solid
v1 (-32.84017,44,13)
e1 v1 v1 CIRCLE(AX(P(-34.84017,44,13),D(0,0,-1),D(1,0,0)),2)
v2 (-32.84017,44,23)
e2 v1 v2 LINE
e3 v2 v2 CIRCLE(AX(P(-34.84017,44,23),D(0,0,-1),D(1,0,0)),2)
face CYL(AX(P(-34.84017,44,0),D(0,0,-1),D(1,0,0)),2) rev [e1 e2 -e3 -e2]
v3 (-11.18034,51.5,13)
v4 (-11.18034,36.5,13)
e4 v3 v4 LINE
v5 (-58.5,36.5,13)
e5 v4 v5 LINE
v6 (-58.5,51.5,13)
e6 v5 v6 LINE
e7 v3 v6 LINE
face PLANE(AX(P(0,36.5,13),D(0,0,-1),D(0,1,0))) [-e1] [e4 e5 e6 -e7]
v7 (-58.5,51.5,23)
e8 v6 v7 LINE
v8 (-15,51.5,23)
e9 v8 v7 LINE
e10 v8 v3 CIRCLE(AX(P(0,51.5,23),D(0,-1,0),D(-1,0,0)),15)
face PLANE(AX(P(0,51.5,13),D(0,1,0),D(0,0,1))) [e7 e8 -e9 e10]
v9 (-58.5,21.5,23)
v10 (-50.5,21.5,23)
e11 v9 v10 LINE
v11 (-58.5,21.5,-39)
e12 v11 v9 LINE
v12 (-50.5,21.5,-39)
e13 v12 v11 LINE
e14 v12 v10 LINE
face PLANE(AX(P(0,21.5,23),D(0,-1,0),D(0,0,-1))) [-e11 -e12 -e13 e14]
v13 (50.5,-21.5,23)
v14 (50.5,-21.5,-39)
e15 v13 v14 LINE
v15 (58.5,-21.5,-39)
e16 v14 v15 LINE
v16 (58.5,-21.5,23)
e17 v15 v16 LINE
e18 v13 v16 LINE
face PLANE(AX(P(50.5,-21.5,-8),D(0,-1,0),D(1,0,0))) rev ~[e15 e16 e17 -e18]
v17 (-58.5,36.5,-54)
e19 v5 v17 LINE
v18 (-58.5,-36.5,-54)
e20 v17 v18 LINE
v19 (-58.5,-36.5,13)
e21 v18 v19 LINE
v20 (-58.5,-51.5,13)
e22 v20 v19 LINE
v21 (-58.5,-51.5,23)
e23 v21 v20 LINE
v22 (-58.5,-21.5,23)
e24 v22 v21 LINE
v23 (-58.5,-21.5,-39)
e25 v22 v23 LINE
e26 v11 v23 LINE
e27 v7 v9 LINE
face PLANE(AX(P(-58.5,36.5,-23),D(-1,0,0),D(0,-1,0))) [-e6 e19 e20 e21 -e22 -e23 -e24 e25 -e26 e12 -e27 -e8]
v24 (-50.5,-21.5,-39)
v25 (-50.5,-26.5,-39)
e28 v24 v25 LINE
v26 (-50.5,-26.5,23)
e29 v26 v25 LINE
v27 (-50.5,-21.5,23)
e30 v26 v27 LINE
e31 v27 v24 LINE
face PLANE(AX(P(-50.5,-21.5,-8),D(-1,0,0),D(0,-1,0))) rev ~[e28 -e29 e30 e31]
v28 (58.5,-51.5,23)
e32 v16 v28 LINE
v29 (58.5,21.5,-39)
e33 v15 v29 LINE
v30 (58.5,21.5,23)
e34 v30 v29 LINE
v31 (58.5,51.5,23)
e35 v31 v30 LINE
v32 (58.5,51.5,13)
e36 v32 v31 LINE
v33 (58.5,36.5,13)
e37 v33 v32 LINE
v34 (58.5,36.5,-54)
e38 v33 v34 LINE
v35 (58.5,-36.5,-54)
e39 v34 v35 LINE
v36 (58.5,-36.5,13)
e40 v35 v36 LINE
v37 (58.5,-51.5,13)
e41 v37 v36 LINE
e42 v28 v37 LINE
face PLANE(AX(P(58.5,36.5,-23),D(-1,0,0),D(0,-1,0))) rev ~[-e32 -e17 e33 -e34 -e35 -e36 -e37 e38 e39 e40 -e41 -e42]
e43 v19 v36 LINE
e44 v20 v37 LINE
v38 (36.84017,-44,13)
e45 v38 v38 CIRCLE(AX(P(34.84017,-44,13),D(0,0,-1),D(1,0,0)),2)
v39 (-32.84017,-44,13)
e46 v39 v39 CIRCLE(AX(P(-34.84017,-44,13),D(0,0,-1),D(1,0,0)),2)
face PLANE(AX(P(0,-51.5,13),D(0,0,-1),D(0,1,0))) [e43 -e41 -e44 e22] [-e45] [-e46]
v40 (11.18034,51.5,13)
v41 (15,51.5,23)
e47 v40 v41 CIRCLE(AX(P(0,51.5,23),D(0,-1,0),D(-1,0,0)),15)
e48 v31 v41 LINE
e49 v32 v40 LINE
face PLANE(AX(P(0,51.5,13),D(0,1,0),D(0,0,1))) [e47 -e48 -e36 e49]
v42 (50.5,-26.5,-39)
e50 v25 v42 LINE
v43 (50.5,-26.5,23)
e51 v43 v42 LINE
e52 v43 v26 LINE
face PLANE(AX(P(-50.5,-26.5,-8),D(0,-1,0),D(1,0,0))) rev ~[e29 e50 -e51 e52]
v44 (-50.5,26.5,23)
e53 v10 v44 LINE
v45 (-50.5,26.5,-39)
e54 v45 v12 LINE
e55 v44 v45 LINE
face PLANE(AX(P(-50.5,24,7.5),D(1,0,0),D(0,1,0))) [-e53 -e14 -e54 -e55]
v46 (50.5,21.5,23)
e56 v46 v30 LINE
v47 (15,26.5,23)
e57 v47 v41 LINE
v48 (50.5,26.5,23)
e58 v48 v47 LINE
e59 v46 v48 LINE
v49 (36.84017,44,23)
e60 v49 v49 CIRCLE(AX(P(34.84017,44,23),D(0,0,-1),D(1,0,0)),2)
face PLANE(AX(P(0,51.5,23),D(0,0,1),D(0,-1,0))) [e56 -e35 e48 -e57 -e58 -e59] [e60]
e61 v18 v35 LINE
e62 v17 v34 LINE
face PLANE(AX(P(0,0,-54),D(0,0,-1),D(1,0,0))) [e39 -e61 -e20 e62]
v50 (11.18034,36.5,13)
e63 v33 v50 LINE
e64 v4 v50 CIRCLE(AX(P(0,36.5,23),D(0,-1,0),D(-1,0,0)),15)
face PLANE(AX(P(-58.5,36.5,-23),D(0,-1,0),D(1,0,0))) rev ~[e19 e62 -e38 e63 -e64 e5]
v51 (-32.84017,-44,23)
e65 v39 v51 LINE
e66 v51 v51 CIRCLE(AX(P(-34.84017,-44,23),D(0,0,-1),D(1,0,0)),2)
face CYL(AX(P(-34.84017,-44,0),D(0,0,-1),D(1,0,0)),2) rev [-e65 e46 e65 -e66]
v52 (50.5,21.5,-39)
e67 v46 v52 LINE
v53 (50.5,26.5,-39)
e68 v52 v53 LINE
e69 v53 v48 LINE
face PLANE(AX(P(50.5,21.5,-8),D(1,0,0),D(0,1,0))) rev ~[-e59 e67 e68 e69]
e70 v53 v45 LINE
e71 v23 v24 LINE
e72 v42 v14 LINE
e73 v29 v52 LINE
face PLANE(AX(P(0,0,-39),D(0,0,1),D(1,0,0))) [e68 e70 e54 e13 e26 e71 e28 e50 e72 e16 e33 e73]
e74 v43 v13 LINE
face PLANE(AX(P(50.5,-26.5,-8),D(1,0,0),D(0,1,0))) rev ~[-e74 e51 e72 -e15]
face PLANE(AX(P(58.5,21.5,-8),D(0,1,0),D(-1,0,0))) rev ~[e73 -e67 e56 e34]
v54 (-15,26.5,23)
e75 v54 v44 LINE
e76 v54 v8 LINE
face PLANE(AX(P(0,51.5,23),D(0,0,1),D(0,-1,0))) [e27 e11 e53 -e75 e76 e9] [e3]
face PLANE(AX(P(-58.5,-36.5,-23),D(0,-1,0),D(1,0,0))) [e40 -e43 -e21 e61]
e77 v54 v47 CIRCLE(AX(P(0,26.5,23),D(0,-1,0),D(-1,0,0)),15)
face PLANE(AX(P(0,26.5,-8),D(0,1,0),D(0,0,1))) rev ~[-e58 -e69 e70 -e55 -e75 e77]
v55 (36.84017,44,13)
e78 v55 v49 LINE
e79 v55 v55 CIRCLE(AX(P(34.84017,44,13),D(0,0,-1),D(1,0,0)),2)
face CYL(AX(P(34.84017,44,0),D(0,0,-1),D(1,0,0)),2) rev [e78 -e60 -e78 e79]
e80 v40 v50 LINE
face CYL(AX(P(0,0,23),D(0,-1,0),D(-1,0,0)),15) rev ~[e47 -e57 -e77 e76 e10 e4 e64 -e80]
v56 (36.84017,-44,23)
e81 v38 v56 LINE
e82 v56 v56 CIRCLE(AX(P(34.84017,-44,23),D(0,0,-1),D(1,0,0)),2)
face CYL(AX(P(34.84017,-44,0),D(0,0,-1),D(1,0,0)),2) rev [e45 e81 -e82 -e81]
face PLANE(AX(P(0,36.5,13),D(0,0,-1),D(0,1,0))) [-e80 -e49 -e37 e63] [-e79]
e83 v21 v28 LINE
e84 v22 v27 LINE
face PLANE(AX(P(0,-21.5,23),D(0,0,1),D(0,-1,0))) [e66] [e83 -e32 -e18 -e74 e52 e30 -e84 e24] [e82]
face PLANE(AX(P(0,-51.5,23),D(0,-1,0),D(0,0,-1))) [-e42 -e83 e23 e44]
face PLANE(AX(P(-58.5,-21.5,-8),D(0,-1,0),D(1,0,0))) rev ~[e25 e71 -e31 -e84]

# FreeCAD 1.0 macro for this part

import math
import FreeCAD as App
import Part
import Sketcher
from FreeCAD import Vector


def add_polygon(sketch, points):
    """Adds a closed chain of lines whose ends are joined by coincident constraints."""
    first, n = sketch.GeometryCount, len(points)
    for a, b in zip(points, points[1:] + points[:1]):
        sketch.addGeometry(Part.LineSegment(App.Vector(*a, 0), App.Vector(*b, 0)), False)
    for i in range(n):
        sketch.addConstraint(Sketcher.Constraint("Coincident", first + i, 2, first + (i + 1) % n, 1))

doc = App.newDocument("Part")
body = doc.addObject("PartDesign::Body", "Body")

sketch1 = body.newObject("Sketcher::SketchObject", "Sketch")
sketch1.AttachmentSupport = (doc.getObject("YZ_Plane"), [""])
sketch1.MapMode = "FlatFace"
add_polygon(sketch1, [(52, 23), (22, 23), (22, -8), (-22, -8), (-22, 23), (-52, 23), (-52, 13), (-36, 13), (-36, -23), (36, -23), (36, 13), (52, 13)])
sketch1.addConstraint(Sketcher.Constraint("Horizontal", 0))
sketch1.addConstraint(Sketcher.Constraint("Vertical", 1))
sketch1.addConstraint(Sketcher.Constraint("Horizontal", 2))
sketch1.addConstraint(Sketcher.Constraint("Vertical", 3))
sketch1.addConstraint(Sketcher.Constraint("Horizontal", 4))
sketch1.addConstraint(Sketcher.Constraint("Vertical", 5))
sketch1.addConstraint(Sketcher.Constraint("Horizontal", 6))
sketch1.addConstraint(Sketcher.Constraint("Vertical", 7))
sketch1.addConstraint(Sketcher.Constraint("Horizontal", 8))
sketch1.addConstraint(Sketcher.Constraint("Vertical", 9))
sketch1.addConstraint(Sketcher.Constraint("Horizontal", 10))
sketch1.addConstraint(Sketcher.Constraint("Vertical", 11))
sketch1.addConstraint(Sketcher.Constraint("Symmetric", 0, 2, 3, 2, -2))
sketch1.addConstraint(Sketcher.Constraint("Symmetric", 6, 2, 9, 2, -2))
sketch1.addConstraint(Sketcher.Constraint("Equal", 0, 4))
sketch1.addConstraint(Sketcher.Constraint("DistanceX", 0, 2, 0, 1, 30.0))
sketch1.addConstraint(Sketcher.Constraint("DistanceX", 2, 2, 2, 1, 43.0))
sketch1.addConstraint(Sketcher.Constraint("DistanceX", 6, 1, 6, 2, 15.0))
sketch1.addConstraint(Sketcher.Constraint("DistanceY", 1, 2, 1, 1, 31.0))
sketch1.addConstraint(Sketcher.Constraint("DistanceY", 5, 2, 5, 1, 10.0))
sketch1.addConstraint(Sketcher.Constraint("DistanceY", 7, 2, 7, 1, 36.0))
sketch1.addConstraint(Sketcher.Constraint("DistanceY", -1, 1, 0, 2, 23.0))
pad1 = body.newObject("PartDesign::Pad", "Pad")
pad1.Profile = sketch1
pad1.Length = 117
pad1.Midplane = True

sketch2 = body.newObject("Sketcher::SketchObject", "Sketch001")
sketch2.AttachmentSupport = (doc.getObject("XZ_Plane"), [""])
sketch2.MapMode = "FlatFace"
sketch2.addGeometry(Part.ArcOfCircle(Part.Circle(Vector(0, 23, 0), Vector(0, 0, 1), 15), math.radians(180), math.radians(360)), False)
sketch2.addGeometry(Part.LineSegment(Vector(15, 23, 0), Vector(-15, 23, 0)), False)
sketch2.addConstraint(Sketcher.Constraint("Coincident", 0, 1, 1, 2))
sketch2.addConstraint(Sketcher.Constraint("Coincident", 1, 1, 0, 2))
sketch2.addConstraint(Sketcher.Constraint("Horizontal", 1))
sketch2.addConstraint(Sketcher.Constraint("PointOnObject", 0, 3, -2))
sketch2.addConstraint(Sketcher.Constraint("Radius", 0, 15.0))
sketch2.addConstraint(Sketcher.Constraint("DistanceY", -1, 1, 0, 3, 23.0))
sketch2.addConstraint(Sketcher.Constraint("DistanceY", -1, 1, 0, 1, 23.0))
pocket1 = body.newObject("PartDesign::Pocket", "Pocket")
pocket1.Profile = sketch2
pocket1.Length = 136.4

sketch3 = body.newObject("Sketcher::SketchObject", "Sketch002")
sketch3.AttachmentSupport = (doc.getObject("XY_Plane"), [""])
sketch3.MapMode = "FlatFace"
sketch3.addGeometry(Part.Circle(Vector(-34.8, -44, 0), Vector(0, 0, 1), 2), False)
sketch3.addGeometry(Part.Circle(Vector(34.8, -44, 0), Vector(0, 0, 1), 2), False)
sketch3.addGeometry(Part.Circle(Vector(-34.8, 44, 0), Vector(0, 0, 1), 2), False)
sketch3.addGeometry(Part.Circle(Vector(34.8, 44, 0), Vector(0, 0, 1), 2), False)
sketch3.addConstraint(Sketcher.Constraint("Equal", 0, 1))
sketch3.addConstraint(Sketcher.Constraint("Equal", 1, 2))
sketch3.addConstraint(Sketcher.Constraint("Equal", 2, 3))
sketch3.addConstraint(Sketcher.Constraint("Symmetric", 1, 3, 2, 3, -1, 1))
sketch3.addConstraint(Sketcher.Constraint("Symmetric", 0, 3, 3, 3, -1, 1))
sketch3.addConstraint(Sketcher.Constraint("Symmetric", 0, 3, 1, 3, -2))
sketch3.addConstraint(Sketcher.Constraint("Diameter", 0, 4.0))
sketch3.addConstraint(Sketcher.Constraint("DistanceY", 0, 3, -1, 1, 44.0))
sketch3.addConstraint(Sketcher.Constraint("DistanceX", 0, 3, -1, 1, 34.84017))
pocket2 = body.newObject("PartDesign::Pocket", "Pocket001")
pocket2.Profile = sketch3
pocket2.Length = 25
pocket2.Reversed = True

sketch4 = body.newObject("Sketcher::SketchObject", "Sketch003")
sketch4.AttachmentSupport = (doc.getObject("YZ_Plane"), [""])
sketch4.MapMode = "FlatFace"
add_polygon(sketch4, [(-26, 23), (-26, -8), (-22, -8), (-22, 23)])
add_polygon(sketch4, [(22, 23), (22, -8), (26, -8), (26, 23)])
sketch4.addConstraint(Sketcher.Constraint("Vertical", 0))
sketch4.addConstraint(Sketcher.Constraint("Horizontal", 1))
sketch4.addConstraint(Sketcher.Constraint("Vertical", 2))
sketch4.addConstraint(Sketcher.Constraint("Horizontal", 3))
sketch4.addConstraint(Sketcher.Constraint("Vertical", 4))
sketch4.addConstraint(Sketcher.Constraint("Horizontal", 5))
sketch4.addConstraint(Sketcher.Constraint("Vertical", 6))
sketch4.addConstraint(Sketcher.Constraint("Horizontal", 7))
sketch4.addConstraint(Sketcher.Constraint("Symmetric", 1, 2, 4, 2, -2))
sketch4.addConstraint(Sketcher.Constraint("Symmetric", 3, 2, 6, 2, -2))
sketch4.addConstraint(Sketcher.Constraint("DistanceX", 1, 1, 1, 2, 5.0))
sketch4.addConstraint(Sketcher.Constraint("DistanceY", 0, 2, 0, 1, 31.0))
sketch4.addConstraint(Sketcher.Constraint("DistanceY", 0, 2, -1, 1, 8.0))
sketch4.addConstraint(Sketcher.Constraint("DistanceX", 1, 2, 4, 2, 43.0))
pocket3 = body.newObject("PartDesign::Pocket", "Pocket002")
pocket3.Profile = sketch4
pocket3.Length = 101
pocket3.Midplane = True

sketch5 = body.newObject("Sketcher::SketchObject", "Sketch004")
sketch5.AttachmentSupport = (doc.getObject("XY_Plane"), [""])
sketch5.MapMode = "FlatFace"
sketch5.AttachmentOffset = App.Placement(Vector(0, 0, -23), App.Rotation())
add_polygon(sketch5, [(-58, -36), (-58, 36), (58, 36), (58, -36)])
sketch5.addConstraint(Sketcher.Constraint("Vertical", 0))
sketch5.addConstraint(Sketcher.Constraint("Horizontal", 1))
sketch5.addConstraint(Sketcher.Constraint("Vertical", 2))
sketch5.addConstraint(Sketcher.Constraint("Horizontal", 3))
sketch5.addConstraint(Sketcher.Constraint("Symmetric", 0, 2, 2, 2, -1, 1))
sketch5.addConstraint(Sketcher.Constraint("DistanceX", 1, 1, 1, 2, 117.0))
sketch5.addConstraint(Sketcher.Constraint("DistanceY", 0, 1, 0, 2, 73.0))
pad2 = body.newObject("PartDesign::Pad", "Pad001")
pad2.Profile = sketch5
pad2.Length = 31
pad2.Reversed = True

sketch6 = body.newObject("Sketcher::SketchObject", "Sketch005")
sketch6.AttachmentSupport = (doc.getObject("XY_Plane"), [""])
sketch6.MapMode = "FlatFace"
sketch6.AttachmentOffset = App.Placement(Vector(0, 0, -8), App.Rotation())
add_polygon(sketch6, [(-50, 22), (-58, 22), (-58, -22), (-50, -22), (-50, -26), (50, -26), (50, -22), (58, -22), (58, 22), (50, 22), (50, 26), (-50, 26)])
sketch6.addConstraint(Sketcher.Constraint("Horizontal", 0))
sketch6.addConstraint(Sketcher.Constraint("Vertical", 1))
sketch6.addConstraint(Sketcher.Constraint("Horizontal", 2))
sketch6.addConstraint(Sketcher.Constraint("Vertical", 3))
sketch6.addConstraint(Sketcher.Constraint("Horizontal", 4))
sketch6.addConstraint(Sketcher.Constraint("Vertical", 5))
sketch6.addConstraint(Sketcher.Constraint("Horizontal", 6))
sketch6.addConstraint(Sketcher.Constraint("Vertical", 7))
sketch6.addConstraint(Sketcher.Constraint("Horizontal", 8))
sketch6.addConstraint(Sketcher.Constraint("Vertical", 9))
sketch6.addConstraint(Sketcher.Constraint("Horizontal", 10))
sketch6.addConstraint(Sketcher.Constraint("Vertical", 11))
sketch6.addConstraint(Sketcher.Constraint("Symmetric", 0, 2, 6, 2, -1, 1))
sketch6.addConstraint(Sketcher.Constraint("Symmetric", 2, 2, 8, 2, -1, 1))
sketch6.addConstraint(Sketcher.Constraint("Symmetric", 4, 2, 10, 2, -1, 1))
sketch6.addConstraint(Sketcher.Constraint("Symmetric", 2, 2, 5, 2, -2))
sketch6.addConstraint(Sketcher.Constraint("DistanceX", 0, 2, 0, 1, 8.0))
sketch6.addConstraint(Sketcher.Constraint("DistanceX", 4, 1, 4, 2, 101.0))
sketch6.addConstraint(Sketcher.Constraint("DistanceY", 1, 2, 1, 1, 43.0))
sketch6.addConstraint(Sketcher.Constraint("DistanceY", 3, 2, 3, 1, 5.0))
pocket4 = body.newObject("PartDesign::Pocket", "Pocket003")
pocket4.Profile = sketch6
pocket4.Length = 31

doc.recompute()
